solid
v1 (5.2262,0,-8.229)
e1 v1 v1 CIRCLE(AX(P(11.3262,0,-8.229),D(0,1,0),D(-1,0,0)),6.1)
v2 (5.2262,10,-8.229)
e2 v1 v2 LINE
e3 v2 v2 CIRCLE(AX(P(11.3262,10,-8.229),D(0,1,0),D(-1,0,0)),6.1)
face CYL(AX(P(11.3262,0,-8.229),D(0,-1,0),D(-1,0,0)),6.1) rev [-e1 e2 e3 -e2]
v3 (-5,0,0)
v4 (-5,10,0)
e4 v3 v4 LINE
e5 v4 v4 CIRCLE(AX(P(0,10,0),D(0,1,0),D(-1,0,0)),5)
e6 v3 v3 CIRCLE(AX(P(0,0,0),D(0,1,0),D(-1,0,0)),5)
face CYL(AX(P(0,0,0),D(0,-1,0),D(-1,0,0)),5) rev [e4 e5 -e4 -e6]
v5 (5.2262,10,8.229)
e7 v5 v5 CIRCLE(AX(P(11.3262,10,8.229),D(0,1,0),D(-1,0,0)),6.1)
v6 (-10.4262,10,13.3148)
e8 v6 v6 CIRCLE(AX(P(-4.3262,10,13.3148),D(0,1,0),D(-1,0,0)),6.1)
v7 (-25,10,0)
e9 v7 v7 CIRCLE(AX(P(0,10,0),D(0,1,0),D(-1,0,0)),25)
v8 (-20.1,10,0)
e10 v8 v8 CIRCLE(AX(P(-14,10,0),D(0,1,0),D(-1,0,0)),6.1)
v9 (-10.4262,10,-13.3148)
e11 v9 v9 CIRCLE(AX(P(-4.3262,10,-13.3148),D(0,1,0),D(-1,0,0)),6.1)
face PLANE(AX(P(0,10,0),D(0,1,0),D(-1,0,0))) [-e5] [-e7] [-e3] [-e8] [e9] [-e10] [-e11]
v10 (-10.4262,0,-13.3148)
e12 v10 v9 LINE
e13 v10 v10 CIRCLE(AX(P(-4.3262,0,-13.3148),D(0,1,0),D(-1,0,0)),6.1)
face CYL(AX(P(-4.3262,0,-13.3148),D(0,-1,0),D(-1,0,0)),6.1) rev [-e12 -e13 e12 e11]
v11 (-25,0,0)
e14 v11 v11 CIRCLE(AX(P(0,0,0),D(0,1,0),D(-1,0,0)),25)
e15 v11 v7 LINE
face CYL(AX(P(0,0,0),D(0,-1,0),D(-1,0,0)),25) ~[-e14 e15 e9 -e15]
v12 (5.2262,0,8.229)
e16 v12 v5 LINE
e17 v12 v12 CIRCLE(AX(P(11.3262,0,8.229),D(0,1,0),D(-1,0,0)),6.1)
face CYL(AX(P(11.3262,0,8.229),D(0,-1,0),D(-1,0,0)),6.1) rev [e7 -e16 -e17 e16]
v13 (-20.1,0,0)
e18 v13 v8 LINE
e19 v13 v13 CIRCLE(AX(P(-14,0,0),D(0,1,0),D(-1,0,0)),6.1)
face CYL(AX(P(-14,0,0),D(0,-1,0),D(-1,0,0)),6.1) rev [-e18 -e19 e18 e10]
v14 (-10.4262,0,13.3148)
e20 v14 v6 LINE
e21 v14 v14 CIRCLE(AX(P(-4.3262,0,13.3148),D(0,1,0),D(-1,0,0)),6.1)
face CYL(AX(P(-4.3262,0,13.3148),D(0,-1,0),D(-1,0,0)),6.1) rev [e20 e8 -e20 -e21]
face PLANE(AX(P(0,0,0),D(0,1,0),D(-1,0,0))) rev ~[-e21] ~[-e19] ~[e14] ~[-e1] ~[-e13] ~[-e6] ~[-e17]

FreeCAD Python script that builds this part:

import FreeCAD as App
import Part
import Sketcher

V = App.Vector

doc = App.newDocument("Part")
body = doc.addObject("PartDesign::Body", "Body")

# Sketch on XZ plane
sketch1 = doc.addObject("Sketcher::SketchObject", "Sketch")
body.addObject(sketch1)
sketch1.AttachmentSupport = (doc.XZ_Plane, [""])
sketch1.MapMode = "FlatFace"
sketch1.addGeometry([
    Part.Circle(V(0, 0, 0), V(0, 0, 1), 25),  # 0
    Part.Circle(V(11, -8, 0), V(0, 0, 1), 6),  # 1
    Part.Circle(V(-4, -13, 0), V(0, 0, 1), 6),  # 2
    Part.Circle(V(11, 8, 0), V(0, 0, 1), 6),  # 3
    Part.Circle(V(0, 0, 0), V(0, 0, 1), 5),  # 4
    Part.Circle(V(-14, 0, 0), V(0, 0, 1), 6),  # 5
    Part.Circle(V(-4, 13, 0), V(0, 0, 1), 6),  # 6
], False)
sketch1.addConstraint([
    Sketcher.Constraint("Coincident", 0, 3, -1, 1),
    Sketcher.Constraint("Coincident", 4, 3, -1, 1),
    Sketcher.Constraint("Equal", 1, 2),
    Sketcher.Constraint("Equal", 2, 3),
    Sketcher.Constraint("Equal", 3, 5),
    Sketcher.Constraint("Equal", 5, 6),
    Sketcher.Constraint("Symmetric", 1, 3, 3, 3, -1),
    Sketcher.Constraint("Symmetric", 2, 3, 6, 3, -1),
    Sketcher.Constraint("PointOnObject", 5, 3, -1),
    Sketcher.Constraint("Diameter", 0, 50.0),
    Sketcher.Constraint("Diameter", 4, 10.0),
    Sketcher.Constraint("Diameter", 1, 12.2),
    Sketcher.Constraint("DistanceX", 5, 3, -1, 1, 14.0),
    Sketcher.Constraint("DistanceY", 1, 3, -1, 1, 8.229),
    Sketcher.Constraint("DistanceX", -1, 1, 1, 3, 11.3262),
    Sketcher.Constraint("DistanceX", 2, 3, -1, 1, 4.3262),
    Sketcher.Constraint("DistanceY", 2, 3, -1, 1, 13.3148),
])
pad1 = doc.addObject("PartDesign::Pad", "Pad")
body.addObject(pad1)
pad1.Profile = sketch1
pad1.Length = 10
pad1.Reversed = True

doc.recompute()
